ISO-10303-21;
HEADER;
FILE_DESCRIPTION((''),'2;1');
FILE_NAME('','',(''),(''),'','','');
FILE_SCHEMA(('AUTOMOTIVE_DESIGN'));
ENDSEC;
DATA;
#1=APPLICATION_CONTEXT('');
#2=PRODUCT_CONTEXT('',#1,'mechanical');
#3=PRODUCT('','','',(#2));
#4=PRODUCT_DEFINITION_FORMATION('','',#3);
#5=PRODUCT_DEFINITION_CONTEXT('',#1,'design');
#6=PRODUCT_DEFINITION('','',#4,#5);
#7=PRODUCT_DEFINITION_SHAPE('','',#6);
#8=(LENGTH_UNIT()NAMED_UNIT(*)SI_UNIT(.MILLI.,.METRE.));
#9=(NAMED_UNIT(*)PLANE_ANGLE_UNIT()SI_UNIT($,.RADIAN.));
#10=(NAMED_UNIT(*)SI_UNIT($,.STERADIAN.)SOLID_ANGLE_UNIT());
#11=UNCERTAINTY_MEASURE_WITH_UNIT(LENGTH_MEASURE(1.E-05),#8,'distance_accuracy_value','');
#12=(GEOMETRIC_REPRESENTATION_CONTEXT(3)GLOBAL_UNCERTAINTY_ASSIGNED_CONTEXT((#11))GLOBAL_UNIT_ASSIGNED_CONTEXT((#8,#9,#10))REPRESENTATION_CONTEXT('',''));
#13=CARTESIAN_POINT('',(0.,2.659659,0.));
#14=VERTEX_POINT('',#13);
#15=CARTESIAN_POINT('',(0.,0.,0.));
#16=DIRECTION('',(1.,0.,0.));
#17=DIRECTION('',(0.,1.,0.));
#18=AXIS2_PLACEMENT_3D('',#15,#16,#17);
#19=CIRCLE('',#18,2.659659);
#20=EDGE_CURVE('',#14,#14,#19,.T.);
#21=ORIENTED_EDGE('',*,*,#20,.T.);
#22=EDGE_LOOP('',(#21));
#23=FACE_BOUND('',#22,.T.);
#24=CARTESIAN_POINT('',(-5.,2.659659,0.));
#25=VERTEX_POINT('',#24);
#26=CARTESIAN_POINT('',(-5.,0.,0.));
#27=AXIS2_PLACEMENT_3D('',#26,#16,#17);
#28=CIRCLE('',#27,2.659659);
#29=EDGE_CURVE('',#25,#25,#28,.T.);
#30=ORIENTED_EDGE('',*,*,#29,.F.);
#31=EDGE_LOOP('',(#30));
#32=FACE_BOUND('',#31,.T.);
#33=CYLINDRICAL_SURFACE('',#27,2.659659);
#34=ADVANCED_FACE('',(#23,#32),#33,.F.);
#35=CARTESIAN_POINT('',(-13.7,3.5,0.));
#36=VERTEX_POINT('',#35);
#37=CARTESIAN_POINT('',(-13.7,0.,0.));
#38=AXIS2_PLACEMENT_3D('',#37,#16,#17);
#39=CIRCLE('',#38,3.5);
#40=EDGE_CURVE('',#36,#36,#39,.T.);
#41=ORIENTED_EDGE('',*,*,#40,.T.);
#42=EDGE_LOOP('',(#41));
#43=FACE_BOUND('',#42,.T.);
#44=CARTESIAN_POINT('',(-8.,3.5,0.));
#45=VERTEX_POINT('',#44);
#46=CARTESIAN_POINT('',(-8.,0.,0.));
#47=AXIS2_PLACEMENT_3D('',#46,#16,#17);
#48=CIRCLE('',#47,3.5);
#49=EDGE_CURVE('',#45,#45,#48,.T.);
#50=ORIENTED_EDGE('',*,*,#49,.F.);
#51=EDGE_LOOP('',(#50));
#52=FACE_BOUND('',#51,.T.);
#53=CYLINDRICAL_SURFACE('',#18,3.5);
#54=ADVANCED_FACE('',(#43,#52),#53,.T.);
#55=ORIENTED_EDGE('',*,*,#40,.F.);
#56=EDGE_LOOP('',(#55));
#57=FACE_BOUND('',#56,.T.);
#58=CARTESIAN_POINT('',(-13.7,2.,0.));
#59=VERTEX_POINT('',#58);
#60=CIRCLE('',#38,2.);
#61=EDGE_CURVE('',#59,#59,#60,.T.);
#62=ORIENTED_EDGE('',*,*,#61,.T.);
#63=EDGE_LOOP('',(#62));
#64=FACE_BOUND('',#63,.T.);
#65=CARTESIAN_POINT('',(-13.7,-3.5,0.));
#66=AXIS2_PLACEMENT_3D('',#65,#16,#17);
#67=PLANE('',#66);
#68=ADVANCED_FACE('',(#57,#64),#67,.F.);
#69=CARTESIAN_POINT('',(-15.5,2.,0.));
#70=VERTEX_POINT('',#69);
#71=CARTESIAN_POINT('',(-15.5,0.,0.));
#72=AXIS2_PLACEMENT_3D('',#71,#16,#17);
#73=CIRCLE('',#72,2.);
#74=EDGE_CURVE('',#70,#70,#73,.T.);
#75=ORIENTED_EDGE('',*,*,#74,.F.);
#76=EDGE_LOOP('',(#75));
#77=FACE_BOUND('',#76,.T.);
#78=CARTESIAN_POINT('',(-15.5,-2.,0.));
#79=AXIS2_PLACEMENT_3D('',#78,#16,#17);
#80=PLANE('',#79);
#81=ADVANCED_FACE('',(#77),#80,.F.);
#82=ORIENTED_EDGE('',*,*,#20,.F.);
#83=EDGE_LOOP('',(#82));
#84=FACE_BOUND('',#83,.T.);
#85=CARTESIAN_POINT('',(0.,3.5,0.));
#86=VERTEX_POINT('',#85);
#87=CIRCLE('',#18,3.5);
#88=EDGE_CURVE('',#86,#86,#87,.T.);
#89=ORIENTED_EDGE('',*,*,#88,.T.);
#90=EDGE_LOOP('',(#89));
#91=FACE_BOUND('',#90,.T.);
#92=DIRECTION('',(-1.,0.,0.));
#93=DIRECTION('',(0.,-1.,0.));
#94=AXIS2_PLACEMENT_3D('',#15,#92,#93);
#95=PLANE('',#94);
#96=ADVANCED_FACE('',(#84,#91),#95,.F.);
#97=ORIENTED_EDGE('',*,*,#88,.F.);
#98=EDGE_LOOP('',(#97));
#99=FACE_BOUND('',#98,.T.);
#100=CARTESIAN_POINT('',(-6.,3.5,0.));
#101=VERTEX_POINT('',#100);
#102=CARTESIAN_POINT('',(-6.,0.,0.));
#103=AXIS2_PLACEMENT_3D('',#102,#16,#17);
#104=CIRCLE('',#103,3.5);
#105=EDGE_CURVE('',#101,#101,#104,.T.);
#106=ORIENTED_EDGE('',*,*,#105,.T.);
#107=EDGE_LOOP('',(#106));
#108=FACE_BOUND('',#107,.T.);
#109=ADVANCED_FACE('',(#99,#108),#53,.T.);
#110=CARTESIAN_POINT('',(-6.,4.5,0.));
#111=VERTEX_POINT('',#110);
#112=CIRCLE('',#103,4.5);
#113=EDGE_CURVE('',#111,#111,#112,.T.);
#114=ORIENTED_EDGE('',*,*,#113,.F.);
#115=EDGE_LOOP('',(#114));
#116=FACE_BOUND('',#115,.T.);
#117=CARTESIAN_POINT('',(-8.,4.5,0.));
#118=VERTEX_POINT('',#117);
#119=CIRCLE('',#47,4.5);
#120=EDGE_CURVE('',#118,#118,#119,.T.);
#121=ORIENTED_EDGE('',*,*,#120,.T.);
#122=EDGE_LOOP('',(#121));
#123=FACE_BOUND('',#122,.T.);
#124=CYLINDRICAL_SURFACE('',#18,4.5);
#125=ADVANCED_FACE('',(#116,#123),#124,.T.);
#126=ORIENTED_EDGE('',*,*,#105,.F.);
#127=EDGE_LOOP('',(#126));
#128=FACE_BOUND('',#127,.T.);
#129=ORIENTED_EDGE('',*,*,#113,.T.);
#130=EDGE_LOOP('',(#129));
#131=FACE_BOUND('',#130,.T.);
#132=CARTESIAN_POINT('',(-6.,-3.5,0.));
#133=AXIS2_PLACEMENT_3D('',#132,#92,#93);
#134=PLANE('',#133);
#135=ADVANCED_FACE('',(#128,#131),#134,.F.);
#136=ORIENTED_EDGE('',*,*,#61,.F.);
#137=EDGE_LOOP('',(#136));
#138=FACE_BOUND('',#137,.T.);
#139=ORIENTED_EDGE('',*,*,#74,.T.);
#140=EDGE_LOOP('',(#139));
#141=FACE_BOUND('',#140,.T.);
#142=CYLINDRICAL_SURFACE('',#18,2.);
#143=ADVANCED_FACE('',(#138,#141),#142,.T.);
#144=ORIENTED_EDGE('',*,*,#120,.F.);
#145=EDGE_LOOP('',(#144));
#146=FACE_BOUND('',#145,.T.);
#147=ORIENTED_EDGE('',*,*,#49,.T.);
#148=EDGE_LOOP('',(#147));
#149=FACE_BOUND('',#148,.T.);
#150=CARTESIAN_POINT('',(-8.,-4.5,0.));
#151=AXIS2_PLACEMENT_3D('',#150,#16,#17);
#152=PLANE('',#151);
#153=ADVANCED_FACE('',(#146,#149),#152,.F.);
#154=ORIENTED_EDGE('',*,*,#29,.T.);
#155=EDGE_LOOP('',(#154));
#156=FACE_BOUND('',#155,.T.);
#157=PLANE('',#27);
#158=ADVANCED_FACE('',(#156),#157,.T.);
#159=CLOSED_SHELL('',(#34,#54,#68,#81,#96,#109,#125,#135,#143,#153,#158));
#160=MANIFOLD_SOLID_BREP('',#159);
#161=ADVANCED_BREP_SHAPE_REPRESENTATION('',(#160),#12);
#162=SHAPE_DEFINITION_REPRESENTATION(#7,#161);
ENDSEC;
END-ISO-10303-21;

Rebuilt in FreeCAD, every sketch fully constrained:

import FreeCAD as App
import Part
import Sketcher

V = App.Vector
Q = App.Units.Quantity


def add_polygon(sketch, points):
    """Adds a closed chain of lines whose ends are joined by coincident constraints."""
    first, n = sketch.GeometryCount, len(points)
    for a, b in zip(points, points[1:] + points[:1]):
        sketch.addGeometry(Part.LineSegment(App.Vector(*a, 0), App.Vector(*b, 0)), False)
    for i in range(n):
        sketch.addConstraint(Sketcher.Constraint("Coincident", first + i, 2, first + (i + 1) % n, 1))

doc = App.newDocument("Part")
body = doc.addObject("PartDesign::Body", "Body")

sketch1 = body.newObject("Sketcher::SketchObject", "Sketch")
sketch1.AttachmentSupport = (doc.getObject("XY_Plane"), [""])
sketch1.MapMode = "FlatFace"
add_polygon(sketch1, [(0, -3.5), (0, 0), (-15.5, 0), (-15.5, -2), (-13.7, -2), (-13.7, -3.5), (-8, -3.5), (-8, -4.5), (-6, -4.5), (-6, -3.5)])
sketch1.addConstraint(Sketcher.Constraint("Vertical", 0))
sketch1.addConstraint(Sketcher.Constraint("Horizontal", 1))
sketch1.addConstraint(Sketcher.Constraint("Vertical", 2))
sketch1.addConstraint(Sketcher.Constraint("Horizontal", 3))
sketch1.addConstraint(Sketcher.Constraint("Vertical", 4))
sketch1.addConstraint(Sketcher.Constraint("Horizontal", 5))
sketch1.addConstraint(Sketcher.Constraint("Vertical", 6))
sketch1.addConstraint(Sketcher.Constraint("Horizontal", 7))
sketch1.addConstraint(Sketcher.Constraint("Vertical", 8))
sketch1.addConstraint(Sketcher.Constraint("Horizontal", 9))
sketch1.addConstraint(Sketcher.Constraint("Coincident", 0, 2, -1, 1))
sketch1.addConstraint(Sketcher.Constraint("Horizontal", 5, 2, 8, 2))
sketch1.addConstraint(Sketcher.Constraint("Equal", 7, 2))
sketch1.addConstraint(Sketcher.Constraint("DistanceX", 7, 1, 7, 2, Q("2 mm")))
sketch1.addConstraint(Sketcher.Constraint("DistanceX", 9, 1, 9, 2, Q("6 mm")))
sketch1.addConstraint(Sketcher.Constraint("DistanceY", 6, 2, 6, 1, Q("1 mm")))
sketch1.addConstraint(Sketcher.Constraint("DistanceX", 1, 2, 1, 1, Q("15.5 mm")))
sketch1.addConstraint(Sketcher.Constraint("DistanceX", 3, 1, 3, 2, Q("1.8 mm")))
sketch1.addConstraint(Sketcher.Constraint("DistanceY", 0, 1, 0, 2, Q("3.5 mm")))
revolution = body.newObject("PartDesign::Revolution", "Revolution")
revolution.Profile = sketch1
revolution.ReferenceAxis = (sketch1, ["H_Axis"])
revolution.Angle = 360

sketch2 = body.newObject("Sketcher::SketchObject", "Sketch001")
sketch2.AttachmentSupport = (doc.getObject("YZ_Plane"), [""])
sketch2.MapMode = "FlatFace"
sketch2.addGeometry(Part.Circle(V(0, 0, 0), V(0, 0, 1), 2.7), False)
sketch2.addConstraint(Sketcher.Constraint("Coincident", 0, 3, -1, 1))
sketch2.addConstraint(Sketcher.Constraint("Diameter", 0, Q("5.319318 mm")))
pocket1 = body.newObject("PartDesign::Pocket", "Pocket")
pocket1.Profile = sketch2
pocket1.Length = 5

doc.recompute()
